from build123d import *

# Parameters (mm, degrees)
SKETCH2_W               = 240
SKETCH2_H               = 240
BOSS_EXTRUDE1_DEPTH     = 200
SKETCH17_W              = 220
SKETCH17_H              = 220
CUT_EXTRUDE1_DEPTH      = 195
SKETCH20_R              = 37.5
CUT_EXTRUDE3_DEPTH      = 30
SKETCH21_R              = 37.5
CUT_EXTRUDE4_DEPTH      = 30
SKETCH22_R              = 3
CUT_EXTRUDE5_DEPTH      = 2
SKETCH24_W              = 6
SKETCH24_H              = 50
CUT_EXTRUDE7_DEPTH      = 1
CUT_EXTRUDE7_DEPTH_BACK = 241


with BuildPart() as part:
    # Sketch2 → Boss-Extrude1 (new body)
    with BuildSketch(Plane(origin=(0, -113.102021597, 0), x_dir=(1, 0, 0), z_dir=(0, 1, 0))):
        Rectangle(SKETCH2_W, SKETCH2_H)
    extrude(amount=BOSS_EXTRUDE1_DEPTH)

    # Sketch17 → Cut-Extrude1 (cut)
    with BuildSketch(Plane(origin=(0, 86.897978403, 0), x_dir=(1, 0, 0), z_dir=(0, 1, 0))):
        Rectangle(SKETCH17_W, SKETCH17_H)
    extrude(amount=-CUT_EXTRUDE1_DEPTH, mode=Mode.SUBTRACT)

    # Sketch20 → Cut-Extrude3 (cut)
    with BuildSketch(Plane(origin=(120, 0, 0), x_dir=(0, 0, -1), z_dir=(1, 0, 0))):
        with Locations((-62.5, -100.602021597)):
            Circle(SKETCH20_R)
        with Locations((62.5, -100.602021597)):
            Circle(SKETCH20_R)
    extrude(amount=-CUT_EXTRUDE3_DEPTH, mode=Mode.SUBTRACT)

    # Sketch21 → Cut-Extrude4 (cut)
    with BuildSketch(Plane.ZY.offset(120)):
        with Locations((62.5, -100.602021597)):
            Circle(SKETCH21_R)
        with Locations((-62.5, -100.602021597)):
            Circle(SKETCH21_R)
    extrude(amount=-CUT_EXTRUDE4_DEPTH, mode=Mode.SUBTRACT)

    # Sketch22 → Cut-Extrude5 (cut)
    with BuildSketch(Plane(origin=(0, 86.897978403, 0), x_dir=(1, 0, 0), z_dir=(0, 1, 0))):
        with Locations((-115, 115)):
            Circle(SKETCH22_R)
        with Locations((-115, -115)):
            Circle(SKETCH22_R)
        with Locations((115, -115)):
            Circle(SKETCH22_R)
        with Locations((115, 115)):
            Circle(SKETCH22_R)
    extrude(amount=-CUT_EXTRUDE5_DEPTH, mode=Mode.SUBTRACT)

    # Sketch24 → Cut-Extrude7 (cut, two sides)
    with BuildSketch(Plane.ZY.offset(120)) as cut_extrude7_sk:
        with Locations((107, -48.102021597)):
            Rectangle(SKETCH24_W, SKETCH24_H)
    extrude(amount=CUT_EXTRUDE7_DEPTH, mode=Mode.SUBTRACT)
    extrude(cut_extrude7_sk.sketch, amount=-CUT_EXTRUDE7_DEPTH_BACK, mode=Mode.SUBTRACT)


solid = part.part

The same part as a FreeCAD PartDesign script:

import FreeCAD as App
import Part
import Sketcher
from FreeCAD import Vector
Q = App.Units.Quantity


def add_polygon(sketch, points):
    """Adds a closed chain of lines whose ends are joined by coincident constraints."""
    first, n = sketch.GeometryCount, len(points)
    for a, b in zip(points, points[1:] + points[:1]):
        sketch.addGeometry(Part.LineSegment(App.Vector(*a, 0), App.Vector(*b, 0)), False)
    for i in range(n):
        sketch.addConstraint(Sketcher.Constraint("Coincident", first + i, 2, first + (i + 1) % n, 1))

doc = App.newDocument("Part")
body = doc.addObject("PartDesign::Body", "Body")

# Sketch on XZ plane
sketch1 = body.newObject("Sketcher::SketchObject", "Sketch")
sketch1.AttachmentSupport = (doc.getObject("XZ_Plane"), [""])
sketch1.MapMode = "FlatFace"
sketch1.AttachmentOffset = App.Placement(Vector(0, 0, 113.102022), App.Rotation())
add_polygon(sketch1, [(-120, -120), (-120, 120), (120, 120), (120, -120)])  # lines 0-3
sketch1.addConstraint([
    Sketcher.Constraint("Vertical", 0),
    Sketcher.Constraint("Horizontal", 1),
    Sketcher.Constraint("Vertical", 2),
    Sketcher.Constraint("Horizontal", 3),
    Sketcher.Constraint("Symmetric", 0, 2, 2, 2, -1, 1),
    Sketcher.Constraint("Equal", 3, 0),
    Sketcher.Constraint("DistanceX", 1, 1, 1, 2, Q("240 mm")),
])
pad1 = body.newObject("PartDesign::Pad", "Pad")
pad1.Profile = sketch1
pad1.Length = 200
pad1.Reversed = True

# Sketch on XZ plane
sketch2 = body.newObject("Sketcher::SketchObject", "Sketch001")
sketch2.AttachmentSupport = (doc.getObject("XZ_Plane"), [""])
sketch2.MapMode = "FlatFace"
sketch2.AttachmentOffset = App.Placement(Vector(0, 0, -86.897978), App.Rotation())
add_polygon(sketch2, [(-110, -110), (-110, 110), (110, 110), (110, -110)])  # lines 0-3
sketch2.addConstraint([
    Sketcher.Constraint("Vertical", 0),
    Sketcher.Constraint("Horizontal", 1),
    Sketcher.Constraint("Vertical", 2),
    Sketcher.Constraint("Horizontal", 3),
    Sketcher.Constraint("Symmetric", 0, 2, 2, 2, -1, 1),
    Sketcher.Constraint("Equal", 3, 0),
    Sketcher.Constraint("DistanceX", 1, 1, 1, 2, Q("220 mm")),
])
pocket1 = body.newObject("PartDesign::Pocket", "Pocket")
pocket1.Profile = sketch2
pocket1.Length = 195
pocket1.Reversed = True

# Sketch on YZ plane
sketch3 = body.newObject("Sketcher::SketchObject", "Sketch002")
sketch3.AttachmentSupport = (doc.getObject("YZ_Plane"), [""])
sketch3.MapMode = "FlatFace"
sketch3.AttachmentOffset = App.Placement(Vector(0, 0, 120), App.Rotation())
sketch3.addGeometry([
    Part.Circle(Vector(-101, 62, 0), Vector(0, 0, 1), 38),
    Part.Circle(Vector(-101, -62, 0), Vector(0, 0, 1), 38),
], False)
sketch3.addConstraint([
    Sketcher.Constraint("Equal", 0, 1),
    Sketcher.Constraint("Symmetric", 0, 3, 1, 3, -1),
    Sketcher.Constraint("Diameter", 0, Q("75 mm")),
    Sketcher.Constraint("DistanceY", 1, 3, 0, 3, Q("125 mm")),
    Sketcher.Constraint("DistanceX", 0, 3, -1, 1, Q("100.602022 mm")),
])
pocket2 = body.newObject("PartDesign::Pocket", "Pocket001")
pocket2.Profile = sketch3
pocket2.Length = 30

# Sketch on YZ plane
sketch4 = body.newObject("Sketcher::SketchObject", "Sketch003")
sketch4.AttachmentSupport = (doc.getObject("YZ_Plane"), [""])
sketch4.MapMode = "FlatFace"
sketch4.AttachmentOffset = App.Placement(Vector(0, 0, -120), App.Rotation())
sketch4.addGeometry([
    Part.Circle(Vector(-101, 62, 0), Vector(0, 0, 1), 38),
    Part.Circle(Vector(-101, -62, 0), Vector(0, 0, 1), 38),
], False)
sketch4.addConstraint([
    Sketcher.Constraint("Equal", 0, 1),
    Sketcher.Constraint("Symmetric", 0, 3, 1, 3, -1),
    Sketcher.Constraint("Diameter", 0, Q("75 mm")),
    Sketcher.Constraint("DistanceY", 1, 3, 0, 3, Q("125 mm")),
    Sketcher.Constraint("DistanceX", 0, 3, -1, 1, Q("100.602022 mm")),
])
pocket3 = body.newObject("PartDesign::Pocket", "Pocket002")
pocket3.Profile = sketch4
pocket3.Length = 30
pocket3.Reversed = True

# Sketch on XZ plane
sketch5 = body.newObject("Sketcher::SketchObject", "Sketch004")
sketch5.AttachmentSupport = (doc.getObject("XZ_Plane"), [""])
sketch5.MapMode = "FlatFace"
sketch5.AttachmentOffset = App.Placement(Vector(0, 0, -86.897978), App.Rotation())
sketch5.addGeometry([
    Part.Circle(Vector(-115, -115, 0), Vector(0, 0, 1), 3),
    Part.Circle(Vector(-115, 115, 0), Vector(0, 0, 1), 3),
    Part.Circle(Vector(115, 115, 0), Vector(0, 0, 1), 3),
    Part.Circle(Vector(115, -115, 0), Vector(0, 0, 1), 3),
], False)
sketch5.addConstraint([
    Sketcher.Constraint("Equal", 0, 1),
    Sketcher.Constraint("Equal", 1, 2),
    Sketcher.Constraint("Equal", 2, 3),
    Sketcher.Constraint("Symmetric", 0, 3, 2, 3, -1, 1),
    Sketcher.Constraint("Symmetric", 1, 3, 3, 3, -1, 1),
    Sketcher.Constraint("Symmetric", 1, 3, 2, 3, -2),
    Sketcher.Constraint("Diameter", 0, Q("6 mm")),
    Sketcher.Constraint("DistanceX", 0, 3, -1, 1, Q("115 mm")),
    Sketcher.Constraint("DistanceY", 0, 3, -1, 1, Q("115 mm")),
])
pocket4 = body.newObject("PartDesign::Pocket", "Pocket003")
pocket4.Profile = sketch5
pocket4.Length = 2
pocket4.Reversed = True

# Sketch on YZ plane
sketch6 = body.newObject("Sketcher::SketchObject", "Sketch005")
sketch6.AttachmentSupport = (doc.getObject("YZ_Plane"), [""])
sketch6.MapMode = "FlatFace"
sketch6.AttachmentOffset = App.Placement(Vector(0, 0, -120), App.Rotation())
add_polygon(sketch6, [(-23, 104), (-73, 104), (-73, 110), (-23, 110)])  # lines 0-3
sketch6.addConstraint([
    Sketcher.Constraint("Horizontal", 0),
    Sketcher.Constraint("Vertical", 1),
    Sketcher.Constraint("Horizontal", 2),
    Sketcher.Constraint("Vertical", 3),
    Sketcher.Constraint("DistanceX", 0, 2, 0, 1, Q("50 mm")),
    Sketcher.Constraint("DistanceY", 1, 1, 1, 2, Q("6 mm")),
    Sketcher.Constraint("DistanceY", -1, 1, 0, 2, Q("104 mm")),
    Sketcher.Constraint("DistanceX", 0, 2, -1, 1, Q("73.102022 mm")),
])
pocket5 = body.newObject("PartDesign::Pocket", "Pocket004")
pocket5.Profile = sketch6
pocket5.Type = "ThroughAll"
pocket5.Midplane = True

doc.recompute()
